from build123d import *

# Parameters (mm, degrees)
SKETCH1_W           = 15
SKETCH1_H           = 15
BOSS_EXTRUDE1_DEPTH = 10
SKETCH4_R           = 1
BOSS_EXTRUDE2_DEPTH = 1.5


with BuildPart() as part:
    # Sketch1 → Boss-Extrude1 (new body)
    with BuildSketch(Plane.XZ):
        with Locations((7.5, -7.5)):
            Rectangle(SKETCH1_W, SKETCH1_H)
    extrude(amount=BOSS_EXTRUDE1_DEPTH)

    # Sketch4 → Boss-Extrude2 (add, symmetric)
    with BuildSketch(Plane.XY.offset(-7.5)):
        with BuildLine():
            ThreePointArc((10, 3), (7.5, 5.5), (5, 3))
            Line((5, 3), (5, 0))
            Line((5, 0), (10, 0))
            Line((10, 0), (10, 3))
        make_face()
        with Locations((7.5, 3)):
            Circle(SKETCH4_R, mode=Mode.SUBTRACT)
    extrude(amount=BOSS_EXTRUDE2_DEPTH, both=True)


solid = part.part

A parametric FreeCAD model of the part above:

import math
import FreeCAD as App
import Part
import Sketcher
from FreeCAD import Vector


def add_polygon(sketch, points):
    """Adds a closed chain of lines whose ends are joined by coincident constraints."""
    first, n = sketch.GeometryCount, len(points)
    for a, b in zip(points, points[1:] + points[:1]):
        sketch.addGeometry(Part.LineSegment(App.Vector(*a, 0), App.Vector(*b, 0)), False)
    for i in range(n):
        sketch.addConstraint(Sketcher.Constraint("Coincident", first + i, 2, first + (i + 1) % n, 1))

doc = App.newDocument("Part")
body = doc.addObject("PartDesign::Body", "Body")

sketch1 = body.newObject("Sketcher::SketchObject", "Sketch")
sketch1.AttachmentSupport = (doc.getObject("XZ_Plane"), [""])
sketch1.MapMode = "FlatFace"
add_polygon(sketch1, [(0, 0), (0, -15), (15, -15), (15, 0)])
sketch1.addConstraint(Sketcher.Constraint("Vertical", 0))
sketch1.addConstraint(Sketcher.Constraint("Horizontal", 1))
sketch1.addConstraint(Sketcher.Constraint("Vertical", 2))
sketch1.addConstraint(Sketcher.Constraint("Horizontal", 3))
sketch1.addConstraint(Sketcher.Constraint("Coincident", 3, 2, -1, 1))
sketch1.addConstraint(Sketcher.Constraint("Equal", 3, 0))
sketch1.addConstraint(Sketcher.Constraint("DistanceX", 1, 1, 1, 2, 15.0))
pad1 = body.newObject("PartDesign::Pad", "Pad")
pad1.Profile = sketch1
pad1.Length = 10

sketch2 = body.newObject("Sketcher::SketchObject", "Sketch001")
sketch2.AttachmentSupport = (doc.getObject("XY_Plane"), [""])
sketch2.MapMode = "FlatFace"
sketch2.AttachmentOffset = App.Placement(Vector(0, 0, -7.5), App.Rotation())
sketch2.addGeometry(Part.ArcOfCircle(Part.Circle(Vector(7.5, 3, 0), Vector(0, 0, 1), 2.5), math.radians(0), math.radians(180)), False)
sketch2.addGeometry(Part.LineSegment(Vector(5, 3, 0), Vector(5, 0, 0)), False)
sketch2.addGeometry(Part.LineSegment(Vector(5, 0, 0), Vector(10, 0, 0)), False)
sketch2.addGeometry(Part.LineSegment(Vector(10, 0, 0), Vector(10, 3, 0)), False)
sketch2.addGeometry(Part.Circle(Vector(7.5, 3, 0), Vector(0, 0, 1), 1), False)
sketch2.addConstraint(Sketcher.Constraint("Tangent", 0, 2, 1, 1))
sketch2.addConstraint(Sketcher.Constraint("Coincident", 1, 2, 2, 1))
sketch2.addConstraint(Sketcher.Constraint("Coincident", 2, 2, 3, 1))
sketch2.addConstraint(Sketcher.Constraint("Tangent", 3, 2, 0, 1))
sketch2.addConstraint(Sketcher.Constraint("Vertical", 1))
sketch2.addConstraint(Sketcher.Constraint("Horizontal", 2))
sketch2.addConstraint(Sketcher.Constraint("Vertical", 3))
sketch2.addConstraint(Sketcher.Constraint("Coincident", 4, 3, 0, 3))
sketch2.addConstraint(Sketcher.Constraint("PointOnObject", 1, 2, -1))
sketch2.addConstraint(Sketcher.Constraint("Diameter", 4, 2.0))
sketch2.addConstraint(Sketcher.Constraint("Radius", 0, 2.5))
sketch2.addConstraint(Sketcher.Constraint("DistanceY", 1, 2, 1, 1, 3.0))
sketch2.addConstraint(Sketcher.Constraint("DistanceX", -1, 1, 0, 2, 5.0))
pad2 = body.newObject("PartDesign::Pad", "Pad001")
pad2.Profile = sketch2
pad2.Length = 3
pad2.Midplane = True

doc.recompute()
